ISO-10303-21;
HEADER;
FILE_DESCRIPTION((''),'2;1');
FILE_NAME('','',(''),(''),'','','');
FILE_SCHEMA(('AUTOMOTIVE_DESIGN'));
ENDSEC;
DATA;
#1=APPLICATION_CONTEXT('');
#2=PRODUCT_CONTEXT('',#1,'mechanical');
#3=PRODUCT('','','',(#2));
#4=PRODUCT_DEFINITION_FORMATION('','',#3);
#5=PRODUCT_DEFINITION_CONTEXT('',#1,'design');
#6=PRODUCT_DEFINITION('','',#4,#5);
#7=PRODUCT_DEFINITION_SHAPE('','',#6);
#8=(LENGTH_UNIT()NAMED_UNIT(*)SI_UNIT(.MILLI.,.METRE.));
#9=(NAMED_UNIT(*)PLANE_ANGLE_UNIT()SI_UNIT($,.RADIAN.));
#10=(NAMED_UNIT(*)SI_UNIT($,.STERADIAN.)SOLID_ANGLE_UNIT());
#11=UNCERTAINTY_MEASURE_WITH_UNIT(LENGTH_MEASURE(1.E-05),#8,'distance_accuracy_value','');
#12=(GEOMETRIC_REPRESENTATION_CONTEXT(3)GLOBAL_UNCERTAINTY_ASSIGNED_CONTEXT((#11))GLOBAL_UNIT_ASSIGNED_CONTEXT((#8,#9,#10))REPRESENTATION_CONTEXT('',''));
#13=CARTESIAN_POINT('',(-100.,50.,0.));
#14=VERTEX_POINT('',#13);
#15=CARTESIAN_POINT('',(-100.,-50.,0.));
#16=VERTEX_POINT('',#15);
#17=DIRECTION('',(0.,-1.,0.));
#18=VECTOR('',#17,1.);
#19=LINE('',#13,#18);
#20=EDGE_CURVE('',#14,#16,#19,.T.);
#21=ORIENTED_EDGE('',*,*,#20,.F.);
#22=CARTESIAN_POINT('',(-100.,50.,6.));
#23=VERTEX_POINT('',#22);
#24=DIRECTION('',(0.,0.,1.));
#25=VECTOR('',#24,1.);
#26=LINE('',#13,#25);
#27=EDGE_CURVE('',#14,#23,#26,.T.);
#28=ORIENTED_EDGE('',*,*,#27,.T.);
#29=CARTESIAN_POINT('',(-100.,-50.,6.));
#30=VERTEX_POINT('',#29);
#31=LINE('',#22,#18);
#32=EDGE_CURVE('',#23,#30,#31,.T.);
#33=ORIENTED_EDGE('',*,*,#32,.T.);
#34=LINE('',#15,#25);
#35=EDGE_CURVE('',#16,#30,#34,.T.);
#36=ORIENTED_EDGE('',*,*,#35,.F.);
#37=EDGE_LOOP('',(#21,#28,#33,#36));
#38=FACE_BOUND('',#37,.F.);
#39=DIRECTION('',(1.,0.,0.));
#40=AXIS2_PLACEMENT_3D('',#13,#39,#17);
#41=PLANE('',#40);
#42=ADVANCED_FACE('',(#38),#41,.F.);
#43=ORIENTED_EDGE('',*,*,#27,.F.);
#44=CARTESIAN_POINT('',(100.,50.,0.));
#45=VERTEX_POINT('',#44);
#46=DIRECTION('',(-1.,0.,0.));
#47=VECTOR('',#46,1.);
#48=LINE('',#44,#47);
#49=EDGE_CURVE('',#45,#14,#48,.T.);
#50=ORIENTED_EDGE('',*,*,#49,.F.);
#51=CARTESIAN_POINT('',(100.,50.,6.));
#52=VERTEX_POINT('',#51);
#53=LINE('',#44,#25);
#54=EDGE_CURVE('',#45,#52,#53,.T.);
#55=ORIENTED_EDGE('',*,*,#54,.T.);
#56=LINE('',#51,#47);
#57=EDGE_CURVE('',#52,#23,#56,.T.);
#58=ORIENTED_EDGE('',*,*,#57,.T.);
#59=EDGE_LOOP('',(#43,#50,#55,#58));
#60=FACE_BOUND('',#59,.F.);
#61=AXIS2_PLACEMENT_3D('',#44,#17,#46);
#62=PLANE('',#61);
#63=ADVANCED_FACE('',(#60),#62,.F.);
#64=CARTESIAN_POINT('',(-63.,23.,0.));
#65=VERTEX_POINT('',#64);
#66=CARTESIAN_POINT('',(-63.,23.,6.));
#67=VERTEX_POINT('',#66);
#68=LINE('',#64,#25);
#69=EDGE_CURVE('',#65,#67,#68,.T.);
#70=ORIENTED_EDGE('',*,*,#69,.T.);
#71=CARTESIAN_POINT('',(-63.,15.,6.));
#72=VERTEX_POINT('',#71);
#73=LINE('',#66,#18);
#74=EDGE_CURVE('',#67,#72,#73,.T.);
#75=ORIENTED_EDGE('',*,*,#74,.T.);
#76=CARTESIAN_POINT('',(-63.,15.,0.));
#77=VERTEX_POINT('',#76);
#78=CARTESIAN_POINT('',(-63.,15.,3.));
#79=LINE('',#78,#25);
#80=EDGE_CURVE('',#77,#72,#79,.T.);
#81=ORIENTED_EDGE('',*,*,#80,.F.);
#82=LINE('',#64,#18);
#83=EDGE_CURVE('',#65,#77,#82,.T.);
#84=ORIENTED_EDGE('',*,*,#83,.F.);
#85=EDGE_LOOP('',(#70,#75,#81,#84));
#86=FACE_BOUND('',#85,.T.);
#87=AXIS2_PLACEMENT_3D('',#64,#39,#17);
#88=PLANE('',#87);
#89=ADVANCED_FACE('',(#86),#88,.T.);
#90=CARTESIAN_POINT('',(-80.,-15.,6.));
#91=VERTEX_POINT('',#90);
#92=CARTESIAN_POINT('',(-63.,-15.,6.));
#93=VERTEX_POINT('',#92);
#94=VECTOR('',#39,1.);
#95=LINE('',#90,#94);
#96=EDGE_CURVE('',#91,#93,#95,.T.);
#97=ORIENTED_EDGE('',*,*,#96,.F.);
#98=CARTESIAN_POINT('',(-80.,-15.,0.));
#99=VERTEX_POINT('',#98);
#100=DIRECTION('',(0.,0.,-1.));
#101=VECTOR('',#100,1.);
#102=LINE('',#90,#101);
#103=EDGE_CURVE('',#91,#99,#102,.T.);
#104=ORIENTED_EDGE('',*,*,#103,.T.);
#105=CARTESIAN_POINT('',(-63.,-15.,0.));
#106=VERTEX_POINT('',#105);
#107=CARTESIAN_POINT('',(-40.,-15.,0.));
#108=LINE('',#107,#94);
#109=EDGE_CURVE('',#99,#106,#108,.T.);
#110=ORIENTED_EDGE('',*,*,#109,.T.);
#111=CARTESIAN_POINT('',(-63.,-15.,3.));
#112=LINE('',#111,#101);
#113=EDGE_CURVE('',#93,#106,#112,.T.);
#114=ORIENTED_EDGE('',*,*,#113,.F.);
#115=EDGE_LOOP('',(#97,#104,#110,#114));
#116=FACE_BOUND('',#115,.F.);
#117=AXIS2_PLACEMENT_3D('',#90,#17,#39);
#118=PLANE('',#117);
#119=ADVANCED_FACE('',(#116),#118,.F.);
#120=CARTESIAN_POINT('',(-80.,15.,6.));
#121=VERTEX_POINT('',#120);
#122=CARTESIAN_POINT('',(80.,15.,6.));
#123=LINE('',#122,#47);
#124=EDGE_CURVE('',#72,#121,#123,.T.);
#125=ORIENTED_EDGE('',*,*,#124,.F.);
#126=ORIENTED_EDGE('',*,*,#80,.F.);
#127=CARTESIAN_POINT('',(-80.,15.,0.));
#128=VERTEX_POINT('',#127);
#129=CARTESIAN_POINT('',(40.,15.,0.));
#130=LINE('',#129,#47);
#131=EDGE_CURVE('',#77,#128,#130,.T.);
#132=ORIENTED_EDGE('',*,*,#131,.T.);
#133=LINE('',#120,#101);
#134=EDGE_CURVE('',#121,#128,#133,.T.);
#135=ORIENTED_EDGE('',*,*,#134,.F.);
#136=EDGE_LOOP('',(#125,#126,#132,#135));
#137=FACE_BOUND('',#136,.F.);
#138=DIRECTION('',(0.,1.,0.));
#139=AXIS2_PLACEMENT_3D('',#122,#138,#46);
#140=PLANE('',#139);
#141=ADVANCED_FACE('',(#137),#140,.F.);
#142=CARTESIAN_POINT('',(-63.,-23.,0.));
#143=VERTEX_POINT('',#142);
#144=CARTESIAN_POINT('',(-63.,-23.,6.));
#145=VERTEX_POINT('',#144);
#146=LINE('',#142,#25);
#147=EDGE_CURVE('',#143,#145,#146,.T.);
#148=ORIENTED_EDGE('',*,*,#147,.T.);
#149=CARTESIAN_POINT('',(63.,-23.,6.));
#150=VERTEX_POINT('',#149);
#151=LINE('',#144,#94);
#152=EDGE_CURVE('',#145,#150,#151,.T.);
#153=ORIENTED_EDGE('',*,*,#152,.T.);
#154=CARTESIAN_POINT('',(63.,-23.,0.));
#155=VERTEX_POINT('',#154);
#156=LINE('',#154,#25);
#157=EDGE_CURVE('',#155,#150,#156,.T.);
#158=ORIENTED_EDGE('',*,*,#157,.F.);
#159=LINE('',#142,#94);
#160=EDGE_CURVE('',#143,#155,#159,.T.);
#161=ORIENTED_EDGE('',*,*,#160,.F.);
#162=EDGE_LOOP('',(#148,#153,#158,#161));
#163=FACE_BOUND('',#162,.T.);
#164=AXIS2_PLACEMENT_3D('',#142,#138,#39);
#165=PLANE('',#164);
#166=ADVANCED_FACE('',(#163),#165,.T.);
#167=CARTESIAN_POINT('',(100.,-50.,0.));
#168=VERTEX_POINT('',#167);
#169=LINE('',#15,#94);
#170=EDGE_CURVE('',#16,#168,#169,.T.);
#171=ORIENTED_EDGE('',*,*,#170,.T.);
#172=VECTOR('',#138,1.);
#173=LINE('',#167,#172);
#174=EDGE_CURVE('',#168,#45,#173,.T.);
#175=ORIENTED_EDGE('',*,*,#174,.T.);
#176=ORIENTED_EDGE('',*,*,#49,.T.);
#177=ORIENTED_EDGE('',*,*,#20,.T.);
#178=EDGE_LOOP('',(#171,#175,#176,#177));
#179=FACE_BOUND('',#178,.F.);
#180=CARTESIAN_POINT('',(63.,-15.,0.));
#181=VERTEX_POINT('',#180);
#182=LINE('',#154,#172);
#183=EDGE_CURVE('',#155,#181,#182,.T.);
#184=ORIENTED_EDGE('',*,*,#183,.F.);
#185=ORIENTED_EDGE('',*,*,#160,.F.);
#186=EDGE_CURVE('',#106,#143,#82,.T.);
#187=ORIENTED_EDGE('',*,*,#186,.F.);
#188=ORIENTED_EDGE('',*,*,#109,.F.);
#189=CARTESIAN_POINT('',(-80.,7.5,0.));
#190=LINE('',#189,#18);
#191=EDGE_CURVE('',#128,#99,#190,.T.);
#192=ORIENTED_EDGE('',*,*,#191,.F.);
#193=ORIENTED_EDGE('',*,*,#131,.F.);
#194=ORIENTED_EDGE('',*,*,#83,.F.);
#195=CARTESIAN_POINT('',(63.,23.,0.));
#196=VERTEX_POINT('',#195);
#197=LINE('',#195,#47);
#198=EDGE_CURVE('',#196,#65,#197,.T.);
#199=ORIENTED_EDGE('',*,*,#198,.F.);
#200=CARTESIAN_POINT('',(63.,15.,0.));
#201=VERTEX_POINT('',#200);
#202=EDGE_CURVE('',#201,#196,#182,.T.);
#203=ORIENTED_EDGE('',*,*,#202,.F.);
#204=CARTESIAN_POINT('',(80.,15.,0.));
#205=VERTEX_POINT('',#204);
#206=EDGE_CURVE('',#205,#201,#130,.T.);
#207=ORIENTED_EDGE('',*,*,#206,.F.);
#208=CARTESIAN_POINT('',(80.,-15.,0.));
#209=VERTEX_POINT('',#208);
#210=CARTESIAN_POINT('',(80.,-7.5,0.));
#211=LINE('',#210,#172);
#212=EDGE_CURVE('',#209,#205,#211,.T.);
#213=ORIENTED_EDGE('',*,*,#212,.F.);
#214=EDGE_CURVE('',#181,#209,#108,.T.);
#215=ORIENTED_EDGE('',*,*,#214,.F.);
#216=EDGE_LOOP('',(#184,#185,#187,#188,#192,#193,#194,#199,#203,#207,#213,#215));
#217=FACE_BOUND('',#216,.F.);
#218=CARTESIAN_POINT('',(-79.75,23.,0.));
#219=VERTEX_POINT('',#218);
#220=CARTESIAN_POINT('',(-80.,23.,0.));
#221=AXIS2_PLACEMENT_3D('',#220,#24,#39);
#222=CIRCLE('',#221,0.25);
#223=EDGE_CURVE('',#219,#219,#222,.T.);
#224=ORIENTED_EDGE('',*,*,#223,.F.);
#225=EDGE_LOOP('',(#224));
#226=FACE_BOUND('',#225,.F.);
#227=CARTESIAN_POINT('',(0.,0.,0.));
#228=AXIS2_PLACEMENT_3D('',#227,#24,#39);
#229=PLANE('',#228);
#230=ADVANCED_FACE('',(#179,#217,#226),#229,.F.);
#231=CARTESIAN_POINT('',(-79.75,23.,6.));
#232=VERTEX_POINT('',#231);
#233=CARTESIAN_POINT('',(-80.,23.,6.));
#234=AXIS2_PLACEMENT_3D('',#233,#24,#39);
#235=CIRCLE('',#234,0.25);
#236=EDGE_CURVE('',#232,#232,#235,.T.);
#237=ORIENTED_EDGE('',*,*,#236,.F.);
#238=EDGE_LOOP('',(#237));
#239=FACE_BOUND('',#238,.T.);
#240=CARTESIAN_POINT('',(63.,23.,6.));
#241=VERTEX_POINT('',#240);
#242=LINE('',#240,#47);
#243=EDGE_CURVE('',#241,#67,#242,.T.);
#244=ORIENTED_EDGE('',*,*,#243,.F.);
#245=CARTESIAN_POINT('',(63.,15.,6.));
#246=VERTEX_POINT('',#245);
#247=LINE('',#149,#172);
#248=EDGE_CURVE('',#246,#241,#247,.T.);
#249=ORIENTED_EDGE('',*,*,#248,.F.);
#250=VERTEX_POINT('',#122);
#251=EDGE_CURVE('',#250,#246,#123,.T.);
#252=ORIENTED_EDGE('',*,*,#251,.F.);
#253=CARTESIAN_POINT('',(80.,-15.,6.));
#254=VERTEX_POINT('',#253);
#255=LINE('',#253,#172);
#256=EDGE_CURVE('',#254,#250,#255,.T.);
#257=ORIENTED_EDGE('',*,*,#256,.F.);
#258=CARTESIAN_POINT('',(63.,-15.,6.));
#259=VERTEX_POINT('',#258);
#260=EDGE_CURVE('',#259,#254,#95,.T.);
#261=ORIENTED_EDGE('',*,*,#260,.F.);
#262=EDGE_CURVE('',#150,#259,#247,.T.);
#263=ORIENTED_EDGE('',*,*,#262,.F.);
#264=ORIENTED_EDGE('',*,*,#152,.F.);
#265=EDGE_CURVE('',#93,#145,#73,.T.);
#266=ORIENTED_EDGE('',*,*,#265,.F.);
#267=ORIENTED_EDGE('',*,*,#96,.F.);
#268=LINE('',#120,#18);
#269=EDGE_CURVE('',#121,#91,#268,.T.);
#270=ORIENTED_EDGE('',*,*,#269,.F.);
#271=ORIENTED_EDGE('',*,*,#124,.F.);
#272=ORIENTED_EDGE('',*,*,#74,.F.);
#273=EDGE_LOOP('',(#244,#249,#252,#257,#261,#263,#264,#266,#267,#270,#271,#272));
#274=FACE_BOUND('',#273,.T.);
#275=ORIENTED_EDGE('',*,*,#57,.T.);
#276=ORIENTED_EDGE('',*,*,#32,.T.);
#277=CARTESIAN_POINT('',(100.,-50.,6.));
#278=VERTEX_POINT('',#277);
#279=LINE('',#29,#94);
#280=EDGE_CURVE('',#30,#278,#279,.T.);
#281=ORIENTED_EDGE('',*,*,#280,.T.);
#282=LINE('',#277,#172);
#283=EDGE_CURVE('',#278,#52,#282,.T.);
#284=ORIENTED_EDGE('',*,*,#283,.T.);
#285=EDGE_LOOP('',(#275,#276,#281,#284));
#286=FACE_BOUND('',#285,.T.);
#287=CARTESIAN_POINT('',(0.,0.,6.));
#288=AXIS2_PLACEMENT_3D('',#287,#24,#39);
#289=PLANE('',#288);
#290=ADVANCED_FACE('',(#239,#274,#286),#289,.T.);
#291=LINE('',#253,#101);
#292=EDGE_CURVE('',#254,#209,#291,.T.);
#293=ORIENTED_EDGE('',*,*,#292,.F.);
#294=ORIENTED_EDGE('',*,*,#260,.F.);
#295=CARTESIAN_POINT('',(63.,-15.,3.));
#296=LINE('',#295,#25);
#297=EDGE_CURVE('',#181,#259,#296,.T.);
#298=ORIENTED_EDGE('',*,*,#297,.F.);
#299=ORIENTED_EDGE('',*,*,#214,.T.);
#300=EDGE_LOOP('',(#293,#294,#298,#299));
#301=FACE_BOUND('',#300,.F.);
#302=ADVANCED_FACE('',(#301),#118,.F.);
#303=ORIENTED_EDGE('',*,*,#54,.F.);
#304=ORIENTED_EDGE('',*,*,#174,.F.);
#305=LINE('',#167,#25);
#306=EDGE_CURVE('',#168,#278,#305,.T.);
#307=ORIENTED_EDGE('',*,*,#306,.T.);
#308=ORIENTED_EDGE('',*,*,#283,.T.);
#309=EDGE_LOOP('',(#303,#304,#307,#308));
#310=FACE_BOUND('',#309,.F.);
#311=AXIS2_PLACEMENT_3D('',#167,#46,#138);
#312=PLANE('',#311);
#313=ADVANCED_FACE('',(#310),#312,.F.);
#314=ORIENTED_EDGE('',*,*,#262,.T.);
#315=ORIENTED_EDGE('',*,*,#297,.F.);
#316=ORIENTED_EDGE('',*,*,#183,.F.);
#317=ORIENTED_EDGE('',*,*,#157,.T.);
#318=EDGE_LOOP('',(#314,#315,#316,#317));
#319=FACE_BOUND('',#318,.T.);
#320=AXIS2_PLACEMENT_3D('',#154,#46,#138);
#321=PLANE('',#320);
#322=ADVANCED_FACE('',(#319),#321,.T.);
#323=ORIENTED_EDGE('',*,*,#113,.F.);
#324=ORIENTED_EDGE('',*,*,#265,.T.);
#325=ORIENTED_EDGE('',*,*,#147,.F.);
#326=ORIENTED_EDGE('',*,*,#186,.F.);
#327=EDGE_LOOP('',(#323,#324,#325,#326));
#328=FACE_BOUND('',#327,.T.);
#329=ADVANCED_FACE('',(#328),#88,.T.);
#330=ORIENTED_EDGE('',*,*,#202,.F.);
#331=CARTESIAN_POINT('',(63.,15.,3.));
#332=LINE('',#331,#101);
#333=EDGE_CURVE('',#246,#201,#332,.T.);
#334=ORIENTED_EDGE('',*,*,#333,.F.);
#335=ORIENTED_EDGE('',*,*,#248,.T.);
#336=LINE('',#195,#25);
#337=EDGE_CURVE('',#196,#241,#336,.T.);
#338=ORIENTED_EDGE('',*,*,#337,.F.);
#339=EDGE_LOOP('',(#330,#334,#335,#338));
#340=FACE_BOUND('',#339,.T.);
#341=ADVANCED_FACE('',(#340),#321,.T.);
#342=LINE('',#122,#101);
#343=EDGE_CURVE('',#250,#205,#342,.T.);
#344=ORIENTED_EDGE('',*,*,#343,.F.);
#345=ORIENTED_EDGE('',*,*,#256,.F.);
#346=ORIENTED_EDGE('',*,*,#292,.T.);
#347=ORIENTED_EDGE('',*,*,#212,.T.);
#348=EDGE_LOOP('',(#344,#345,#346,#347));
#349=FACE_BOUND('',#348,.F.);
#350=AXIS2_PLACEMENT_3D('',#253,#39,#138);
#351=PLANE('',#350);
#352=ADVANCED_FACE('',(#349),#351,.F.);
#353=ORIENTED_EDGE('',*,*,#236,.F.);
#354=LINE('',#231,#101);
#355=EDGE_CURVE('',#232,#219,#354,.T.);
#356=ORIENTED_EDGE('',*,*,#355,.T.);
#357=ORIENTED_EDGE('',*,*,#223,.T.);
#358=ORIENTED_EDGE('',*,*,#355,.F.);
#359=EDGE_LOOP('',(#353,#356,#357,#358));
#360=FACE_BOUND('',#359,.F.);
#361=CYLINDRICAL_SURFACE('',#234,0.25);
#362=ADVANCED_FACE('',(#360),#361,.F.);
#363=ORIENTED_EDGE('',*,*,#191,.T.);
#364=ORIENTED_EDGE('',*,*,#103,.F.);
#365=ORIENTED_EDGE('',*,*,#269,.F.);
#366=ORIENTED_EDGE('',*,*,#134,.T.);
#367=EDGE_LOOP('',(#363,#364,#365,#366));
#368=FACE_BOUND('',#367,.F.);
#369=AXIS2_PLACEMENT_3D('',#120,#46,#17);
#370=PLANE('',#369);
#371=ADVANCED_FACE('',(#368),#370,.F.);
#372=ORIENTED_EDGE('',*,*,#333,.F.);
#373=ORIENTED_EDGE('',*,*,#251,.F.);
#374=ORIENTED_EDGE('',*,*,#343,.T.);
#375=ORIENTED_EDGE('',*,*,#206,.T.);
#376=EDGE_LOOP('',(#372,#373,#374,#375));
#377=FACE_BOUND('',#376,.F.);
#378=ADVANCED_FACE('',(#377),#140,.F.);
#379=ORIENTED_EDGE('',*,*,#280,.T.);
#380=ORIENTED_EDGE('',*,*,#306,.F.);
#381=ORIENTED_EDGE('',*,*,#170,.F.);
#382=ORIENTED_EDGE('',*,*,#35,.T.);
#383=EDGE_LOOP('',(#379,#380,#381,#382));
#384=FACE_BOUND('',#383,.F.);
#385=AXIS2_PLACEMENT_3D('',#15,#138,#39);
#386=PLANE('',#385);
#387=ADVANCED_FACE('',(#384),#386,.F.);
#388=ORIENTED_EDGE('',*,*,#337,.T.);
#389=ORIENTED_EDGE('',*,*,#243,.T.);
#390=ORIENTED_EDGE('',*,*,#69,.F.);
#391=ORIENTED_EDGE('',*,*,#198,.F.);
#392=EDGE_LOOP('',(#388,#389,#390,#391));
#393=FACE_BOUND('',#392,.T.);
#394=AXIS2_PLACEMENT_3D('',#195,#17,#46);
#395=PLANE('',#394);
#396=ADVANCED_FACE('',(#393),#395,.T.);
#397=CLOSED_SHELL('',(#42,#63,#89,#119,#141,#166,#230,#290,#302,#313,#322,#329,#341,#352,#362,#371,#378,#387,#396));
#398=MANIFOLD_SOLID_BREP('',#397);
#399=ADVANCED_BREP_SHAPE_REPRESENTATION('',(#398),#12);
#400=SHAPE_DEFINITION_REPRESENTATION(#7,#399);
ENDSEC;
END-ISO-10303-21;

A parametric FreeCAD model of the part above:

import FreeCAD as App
import Part
import Sketcher
Q = App.Units.Quantity


def add_polygon(sketch, points):
    """Adds a closed chain of lines whose ends are joined by coincident constraints."""
    first, n = sketch.GeometryCount, len(points)
    for a, b in zip(points, points[1:] + points[:1]):
        sketch.addGeometry(Part.LineSegment(App.Vector(*a, 0), App.Vector(*b, 0)), False)
    for i in range(n):
        sketch.addConstraint(Sketcher.Constraint("Coincident", first + i, 2, first + (i + 1) % n, 1))

doc = App.newDocument("Part")
body = doc.addObject("PartDesign::Body", "Body")

# Sketch on XY plane
sketch1 = body.newObject("Sketcher::SketchObject", "Sketch")
sketch1.AttachmentSupport = (doc.getObject("XY_Plane"), [""])
sketch1.MapMode = "FlatFace"
add_polygon(sketch1, [(-100, 50), (-100, -50), (100, -50), (100, 50)])  # lines 0-3
add_polygon(sketch1, [(63, -23), (-63, -23), (-63, 23), (63, 23)])  # lines 4-7
sketch1.addConstraint([
    Sketcher.Constraint("Vertical", 0),
    Sketcher.Constraint("Horizontal", 1),
    Sketcher.Constraint("Vertical", 2),
    Sketcher.Constraint("Horizontal", 3),
    Sketcher.Constraint("Horizontal", 4),
    Sketcher.Constraint("Vertical", 5),
    Sketcher.Constraint("Horizontal", 6),
    Sketcher.Constraint("Vertical", 7),
    Sketcher.Constraint("Symmetric", 0, 2, 2, 2, -1, 1),
    Sketcher.Constraint("Symmetric", 4, 2, 6, 2, -1, 1),
    Sketcher.Constraint("DistanceX", 1, 1, 1, 2, Q("200 mm")),
    Sketcher.Constraint("DistanceX", 4, 2, 4, 1, Q("126 mm")),
    Sketcher.Constraint("DistanceY", 0, 2, 0, 1, Q("100 mm")),
    Sketcher.Constraint("DistanceY", 5, 1, 5, 2, Q("46 mm")),
])
pad1 = body.newObject("PartDesign::Pad", "Pad")
pad1.Profile = sketch1
pad1.Length = 6

# Sketch on XY plane
sketch2 = body.newObject("Sketcher::SketchObject", "Sketch001")
sketch2.AttachmentSupport = (doc.getObject("XY_Plane"), [""])
sketch2.MapMode = "FlatFace"
sketch2.AttachmentOffset = App.Placement(App.Vector(0, 0, 6), App.Rotation())
add_polygon(sketch2, [(-80, 15), (-80, -15), (80, -15), (80, 15)])  # lines 0-3
sketch2.addConstraint([
    Sketcher.Constraint("Vertical", 0),
    Sketcher.Constraint("Horizontal", 1),
    Sketcher.Constraint("Vertical", 2),
    Sketcher.Constraint("Horizontal", 3),
    Sketcher.Constraint("Symmetric", 0, 2, 2, 2, -1, 1),
    Sketcher.Constraint("DistanceX", 1, 1, 1, 2, Q("160 mm")),
    Sketcher.Constraint("DistanceY", 0, 2, 0, 1, Q("30 mm")),
])
pocket1 = body.newObject("PartDesign::Pocket", "Pocket")
pocket1.Profile = sketch2
pocket1.Type = "ThroughAll"

# Sketch on XY plane
sketch3 = body.newObject("Sketcher::SketchObject", "Sketch002")
sketch3.AttachmentSupport = (doc.getObject("XY_Plane"), [""])
sketch3.MapMode = "FlatFace"
sketch3.AttachmentOffset = App.Placement(App.Vector(0, 0, 6), App.Rotation())
sketch3.addGeometry(Part.Circle(App.Vector(-80, 23, 0), App.Vector(0, 0, 1), 0.25), False)
sketch3.addConstraint([
    Sketcher.Constraint("Diameter", 0, Q("0.5 mm")),
    Sketcher.Constraint("DistanceX", 0, 3, -1, 1, Q("80 mm")),
    Sketcher.Constraint("DistanceY", -1, 1, 0, 3, Q("23 mm")),
])
pocket2 = body.newObject("PartDesign::Pocket", "Pocket001")
pocket2.Profile = sketch3
pocket2.Type = "ThroughAll"

doc.recompute()
